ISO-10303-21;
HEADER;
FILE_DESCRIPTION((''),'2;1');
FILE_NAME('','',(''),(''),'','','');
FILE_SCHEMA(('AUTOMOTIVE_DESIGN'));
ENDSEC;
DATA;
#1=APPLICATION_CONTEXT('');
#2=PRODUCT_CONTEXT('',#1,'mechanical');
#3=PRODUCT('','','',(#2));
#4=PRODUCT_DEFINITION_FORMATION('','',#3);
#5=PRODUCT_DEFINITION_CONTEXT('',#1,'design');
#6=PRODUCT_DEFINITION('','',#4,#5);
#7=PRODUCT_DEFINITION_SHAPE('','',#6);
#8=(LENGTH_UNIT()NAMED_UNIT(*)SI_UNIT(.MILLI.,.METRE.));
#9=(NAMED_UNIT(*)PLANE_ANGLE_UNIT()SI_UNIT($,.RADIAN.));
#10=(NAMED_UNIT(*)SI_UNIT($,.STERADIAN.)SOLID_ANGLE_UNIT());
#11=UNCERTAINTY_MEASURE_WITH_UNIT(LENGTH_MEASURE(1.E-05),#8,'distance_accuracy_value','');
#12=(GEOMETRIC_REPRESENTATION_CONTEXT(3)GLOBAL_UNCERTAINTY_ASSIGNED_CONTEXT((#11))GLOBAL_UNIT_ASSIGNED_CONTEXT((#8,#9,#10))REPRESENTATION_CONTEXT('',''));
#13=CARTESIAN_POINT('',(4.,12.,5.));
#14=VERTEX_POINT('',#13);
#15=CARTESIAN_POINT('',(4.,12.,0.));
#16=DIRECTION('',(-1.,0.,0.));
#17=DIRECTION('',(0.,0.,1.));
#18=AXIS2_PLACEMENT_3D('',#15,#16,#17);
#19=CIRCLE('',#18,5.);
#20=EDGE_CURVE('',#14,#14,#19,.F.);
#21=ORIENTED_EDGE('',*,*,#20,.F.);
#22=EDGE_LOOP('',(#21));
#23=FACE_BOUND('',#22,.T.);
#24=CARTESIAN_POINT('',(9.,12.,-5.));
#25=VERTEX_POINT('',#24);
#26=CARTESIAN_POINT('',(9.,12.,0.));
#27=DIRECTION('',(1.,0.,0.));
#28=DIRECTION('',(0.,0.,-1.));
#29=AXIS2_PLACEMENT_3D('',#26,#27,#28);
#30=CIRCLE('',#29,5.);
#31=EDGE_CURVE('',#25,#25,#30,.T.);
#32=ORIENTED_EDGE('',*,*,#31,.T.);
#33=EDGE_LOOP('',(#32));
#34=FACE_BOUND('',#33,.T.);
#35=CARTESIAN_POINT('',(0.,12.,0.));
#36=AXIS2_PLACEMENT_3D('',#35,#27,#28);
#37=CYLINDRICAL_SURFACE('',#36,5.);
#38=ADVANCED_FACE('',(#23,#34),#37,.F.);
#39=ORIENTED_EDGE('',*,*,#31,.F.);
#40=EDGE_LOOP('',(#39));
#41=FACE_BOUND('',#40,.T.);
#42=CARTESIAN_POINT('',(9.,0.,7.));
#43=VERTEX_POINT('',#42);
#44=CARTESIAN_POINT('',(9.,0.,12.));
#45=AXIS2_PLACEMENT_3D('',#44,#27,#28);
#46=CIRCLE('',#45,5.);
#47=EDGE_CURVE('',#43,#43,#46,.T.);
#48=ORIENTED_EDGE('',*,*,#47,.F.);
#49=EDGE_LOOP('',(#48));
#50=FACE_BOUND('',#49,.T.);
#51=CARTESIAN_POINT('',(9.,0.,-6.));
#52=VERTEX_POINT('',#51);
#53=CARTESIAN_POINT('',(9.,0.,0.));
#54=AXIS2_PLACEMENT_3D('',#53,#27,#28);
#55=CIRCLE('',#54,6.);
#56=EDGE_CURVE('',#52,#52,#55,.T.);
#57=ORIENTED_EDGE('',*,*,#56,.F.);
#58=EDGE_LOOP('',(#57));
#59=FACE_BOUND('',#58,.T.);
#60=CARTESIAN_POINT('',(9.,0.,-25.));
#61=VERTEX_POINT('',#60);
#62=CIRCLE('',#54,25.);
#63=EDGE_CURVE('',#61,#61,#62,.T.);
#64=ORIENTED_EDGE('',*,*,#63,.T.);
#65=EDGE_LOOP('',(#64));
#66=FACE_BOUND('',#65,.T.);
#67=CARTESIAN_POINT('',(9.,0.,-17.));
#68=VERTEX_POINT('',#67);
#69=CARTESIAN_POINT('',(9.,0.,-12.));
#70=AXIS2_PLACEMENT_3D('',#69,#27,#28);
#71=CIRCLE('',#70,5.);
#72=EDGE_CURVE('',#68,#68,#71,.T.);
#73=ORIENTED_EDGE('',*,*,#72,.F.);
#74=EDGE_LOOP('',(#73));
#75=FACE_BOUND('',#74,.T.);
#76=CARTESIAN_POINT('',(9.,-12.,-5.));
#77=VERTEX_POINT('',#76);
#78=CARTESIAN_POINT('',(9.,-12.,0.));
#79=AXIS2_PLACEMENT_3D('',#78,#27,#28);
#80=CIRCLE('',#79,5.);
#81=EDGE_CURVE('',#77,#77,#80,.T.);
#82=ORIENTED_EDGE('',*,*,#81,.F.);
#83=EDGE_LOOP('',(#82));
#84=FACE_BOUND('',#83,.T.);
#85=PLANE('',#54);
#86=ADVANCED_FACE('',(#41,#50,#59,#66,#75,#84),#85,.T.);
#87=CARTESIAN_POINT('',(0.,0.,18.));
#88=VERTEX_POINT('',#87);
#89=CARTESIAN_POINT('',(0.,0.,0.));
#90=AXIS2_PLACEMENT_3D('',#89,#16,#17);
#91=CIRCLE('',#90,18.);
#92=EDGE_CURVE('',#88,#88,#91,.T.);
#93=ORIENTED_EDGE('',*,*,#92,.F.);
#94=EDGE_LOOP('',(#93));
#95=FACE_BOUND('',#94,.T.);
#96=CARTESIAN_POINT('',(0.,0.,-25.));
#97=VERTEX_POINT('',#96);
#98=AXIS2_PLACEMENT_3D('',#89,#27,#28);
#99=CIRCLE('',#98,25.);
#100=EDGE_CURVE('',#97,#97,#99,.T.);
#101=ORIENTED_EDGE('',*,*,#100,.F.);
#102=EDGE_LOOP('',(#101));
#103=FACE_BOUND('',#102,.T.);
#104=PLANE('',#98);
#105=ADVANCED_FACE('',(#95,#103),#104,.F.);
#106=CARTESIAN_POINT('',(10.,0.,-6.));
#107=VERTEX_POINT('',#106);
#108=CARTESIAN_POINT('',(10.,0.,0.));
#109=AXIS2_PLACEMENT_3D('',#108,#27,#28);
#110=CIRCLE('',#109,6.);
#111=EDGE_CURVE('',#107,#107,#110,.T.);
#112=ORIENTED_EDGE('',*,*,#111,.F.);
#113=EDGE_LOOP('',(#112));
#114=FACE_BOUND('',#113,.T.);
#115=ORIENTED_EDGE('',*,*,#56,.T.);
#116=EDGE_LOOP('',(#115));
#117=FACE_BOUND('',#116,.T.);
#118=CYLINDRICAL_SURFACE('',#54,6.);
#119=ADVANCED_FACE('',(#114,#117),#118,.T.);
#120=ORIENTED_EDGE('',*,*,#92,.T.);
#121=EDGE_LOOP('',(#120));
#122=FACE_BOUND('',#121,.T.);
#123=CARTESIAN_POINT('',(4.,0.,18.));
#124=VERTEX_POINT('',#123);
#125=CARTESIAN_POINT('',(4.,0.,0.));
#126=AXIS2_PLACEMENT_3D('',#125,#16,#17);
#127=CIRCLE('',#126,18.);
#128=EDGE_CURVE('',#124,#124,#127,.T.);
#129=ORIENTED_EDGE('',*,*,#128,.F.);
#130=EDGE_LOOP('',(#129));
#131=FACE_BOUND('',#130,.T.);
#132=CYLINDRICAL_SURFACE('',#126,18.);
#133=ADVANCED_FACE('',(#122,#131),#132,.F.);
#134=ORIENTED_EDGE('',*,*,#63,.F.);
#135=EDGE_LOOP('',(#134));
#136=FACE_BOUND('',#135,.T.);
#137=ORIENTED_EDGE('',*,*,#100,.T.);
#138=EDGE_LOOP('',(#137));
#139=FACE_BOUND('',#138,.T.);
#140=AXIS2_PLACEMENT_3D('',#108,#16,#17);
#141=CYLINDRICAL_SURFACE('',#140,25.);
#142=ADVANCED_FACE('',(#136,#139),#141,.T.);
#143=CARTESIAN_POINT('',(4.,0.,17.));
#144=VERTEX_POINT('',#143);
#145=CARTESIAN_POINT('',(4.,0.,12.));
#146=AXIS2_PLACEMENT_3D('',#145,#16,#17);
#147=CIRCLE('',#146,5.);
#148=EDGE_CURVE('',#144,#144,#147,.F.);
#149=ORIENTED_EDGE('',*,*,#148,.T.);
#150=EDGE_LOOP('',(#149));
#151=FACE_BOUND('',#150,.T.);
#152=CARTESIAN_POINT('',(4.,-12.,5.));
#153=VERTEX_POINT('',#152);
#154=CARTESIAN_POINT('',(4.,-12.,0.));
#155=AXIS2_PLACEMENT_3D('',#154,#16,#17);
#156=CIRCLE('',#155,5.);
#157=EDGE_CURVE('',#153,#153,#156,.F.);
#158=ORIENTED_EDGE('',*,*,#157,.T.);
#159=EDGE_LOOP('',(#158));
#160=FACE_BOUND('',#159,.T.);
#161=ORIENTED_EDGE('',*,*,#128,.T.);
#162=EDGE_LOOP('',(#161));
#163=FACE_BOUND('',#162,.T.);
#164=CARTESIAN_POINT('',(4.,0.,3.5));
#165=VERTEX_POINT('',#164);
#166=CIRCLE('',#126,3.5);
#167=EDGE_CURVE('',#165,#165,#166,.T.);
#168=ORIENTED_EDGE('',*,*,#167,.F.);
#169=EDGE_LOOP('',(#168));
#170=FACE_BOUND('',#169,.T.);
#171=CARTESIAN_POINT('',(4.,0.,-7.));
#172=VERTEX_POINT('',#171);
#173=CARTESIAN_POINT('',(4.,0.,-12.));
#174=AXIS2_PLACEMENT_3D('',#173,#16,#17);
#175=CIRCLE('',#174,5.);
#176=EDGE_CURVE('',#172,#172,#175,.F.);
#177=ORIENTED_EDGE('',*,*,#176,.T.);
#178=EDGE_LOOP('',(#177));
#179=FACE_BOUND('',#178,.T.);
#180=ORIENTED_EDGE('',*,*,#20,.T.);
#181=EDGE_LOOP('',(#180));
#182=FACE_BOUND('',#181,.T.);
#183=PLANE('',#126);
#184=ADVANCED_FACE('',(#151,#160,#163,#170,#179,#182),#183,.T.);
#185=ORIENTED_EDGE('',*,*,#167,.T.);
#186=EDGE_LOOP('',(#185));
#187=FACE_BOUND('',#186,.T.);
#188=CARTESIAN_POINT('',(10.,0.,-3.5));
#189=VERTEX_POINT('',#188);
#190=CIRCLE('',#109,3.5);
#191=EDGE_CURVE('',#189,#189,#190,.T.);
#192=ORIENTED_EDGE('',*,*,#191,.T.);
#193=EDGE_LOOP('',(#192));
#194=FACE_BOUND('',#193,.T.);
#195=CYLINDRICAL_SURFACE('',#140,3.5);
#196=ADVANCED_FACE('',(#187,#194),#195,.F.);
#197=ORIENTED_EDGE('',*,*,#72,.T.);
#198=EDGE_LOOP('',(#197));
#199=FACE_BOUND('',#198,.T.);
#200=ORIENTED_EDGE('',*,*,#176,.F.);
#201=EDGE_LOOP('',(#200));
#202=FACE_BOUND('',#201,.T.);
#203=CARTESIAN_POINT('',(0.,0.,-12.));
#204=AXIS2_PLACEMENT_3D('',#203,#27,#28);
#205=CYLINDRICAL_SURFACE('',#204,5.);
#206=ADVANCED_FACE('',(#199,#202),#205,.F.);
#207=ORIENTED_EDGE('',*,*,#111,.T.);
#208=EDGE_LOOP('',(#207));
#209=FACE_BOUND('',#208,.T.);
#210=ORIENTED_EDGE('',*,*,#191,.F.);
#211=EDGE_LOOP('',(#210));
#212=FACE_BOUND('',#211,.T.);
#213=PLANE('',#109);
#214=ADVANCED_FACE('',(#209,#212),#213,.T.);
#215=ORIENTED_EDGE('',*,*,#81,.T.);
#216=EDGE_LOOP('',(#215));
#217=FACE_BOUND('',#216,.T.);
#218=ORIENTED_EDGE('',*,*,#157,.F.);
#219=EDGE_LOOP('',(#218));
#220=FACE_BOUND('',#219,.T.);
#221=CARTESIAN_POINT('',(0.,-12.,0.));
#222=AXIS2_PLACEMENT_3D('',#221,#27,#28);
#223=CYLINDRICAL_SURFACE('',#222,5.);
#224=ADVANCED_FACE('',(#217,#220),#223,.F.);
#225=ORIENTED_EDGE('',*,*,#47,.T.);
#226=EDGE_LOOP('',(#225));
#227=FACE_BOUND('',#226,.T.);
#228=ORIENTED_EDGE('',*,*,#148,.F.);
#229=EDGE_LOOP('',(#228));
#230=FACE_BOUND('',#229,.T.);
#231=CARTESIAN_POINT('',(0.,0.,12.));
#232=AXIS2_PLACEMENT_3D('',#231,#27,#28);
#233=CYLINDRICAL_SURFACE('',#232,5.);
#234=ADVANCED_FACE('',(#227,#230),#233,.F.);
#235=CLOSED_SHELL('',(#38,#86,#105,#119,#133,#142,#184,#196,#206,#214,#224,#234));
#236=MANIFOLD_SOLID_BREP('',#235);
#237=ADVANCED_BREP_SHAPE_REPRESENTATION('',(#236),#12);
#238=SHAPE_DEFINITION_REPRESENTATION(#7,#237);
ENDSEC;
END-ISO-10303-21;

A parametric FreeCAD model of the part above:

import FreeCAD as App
import Part
import Sketcher
from FreeCAD import Vector
Q = App.Units.Quantity

doc = App.newDocument("Part")
body = doc.addObject("PartDesign::Body", "Body")

sketch1 = body.newObject("Sketcher::SketchObject", "Sketch")
sketch1.AttachmentSupport = (doc.getObject("YZ_Plane"), [""])
sketch1.MapMode = "FlatFace"
sketch1.addGeometry(Part.Circle(Vector(0, 0, 0), Vector(0, 0, 1), 25), False)
sketch1.addGeometry(Part.Circle(Vector(0, 0, 0), Vector(0, 0, 1), 3.5), False)
sketch1.addConstraint(Sketcher.Constraint("Coincident", 0, 3, -1, 1))
sketch1.addConstraint(Sketcher.Constraint("Coincident", 1, 3, -1, 1))
sketch1.addConstraint(Sketcher.Constraint("Diameter", 0, Q("50 mm")))
sketch1.addConstraint(Sketcher.Constraint("Diameter", 1, Q("7 mm")))
pad1 = body.newObject("PartDesign::Pad", "Pad")
pad1.Profile = sketch1
pad1.Length = 10

sketch2 = body.newObject("Sketcher::SketchObject", "Sketch001")
sketch2.AttachmentSupport = (doc.getObject("YZ_Plane"), [""])
sketch2.MapMode = "FlatFace"
sketch2.AttachmentOffset = App.Placement(Vector(0, 0, 9), App.Rotation())
sketch2.addGeometry(Part.Circle(Vector(0, 0, 0), Vector(0, 0, 1), 25), False)
sketch2.addGeometry(Part.Circle(Vector(0, 0, 0), Vector(0, 0, 1), 6), False)
sketch2.addConstraint(Sketcher.Constraint("Coincident", 0, 3, -1, 1))
sketch2.addConstraint(Sketcher.Constraint("Coincident", 1, 3, -1, 1))
sketch2.addConstraint(Sketcher.Constraint("Diameter", 0, Q("50 mm")))
sketch2.addConstraint(Sketcher.Constraint("Diameter", 1, Q("12 mm")))
pocket1 = body.newObject("PartDesign::Pocket", "Pocket")
pocket1.Profile = sketch2
pocket1.Length = 1
pocket1.Reversed = True

sketch3 = body.newObject("Sketcher::SketchObject", "Sketch002")
sketch3.AttachmentSupport = (doc.getObject("YZ_Plane"), [""])
sketch3.MapMode = "FlatFace"
sketch3.AttachmentOffset = App.Placement(Vector(0, 0, 9), App.Rotation())
sketch3.addGeometry(Part.Circle(Vector(12, 0, 0), Vector(0, 0, 1), 5), False)
sketch3.addGeometry(Part.Circle(Vector(0, -12, 0), Vector(0, 0, 1), 5), False)
sketch3.addGeometry(Part.Circle(Vector(-12, 0, 0), Vector(0, 0, 1), 5), False)
sketch3.addGeometry(Part.Circle(Vector(0, 12, 0), Vector(0, 0, 1), 5), False)
sketch3.addConstraint(Sketcher.Constraint("Equal", 0, 1))
sketch3.addConstraint(Sketcher.Constraint("Equal", 1, 2))
sketch3.addConstraint(Sketcher.Constraint("Equal", 2, 3))
sketch3.addConstraint(Sketcher.Constraint("Symmetric", 0, 3, 2, 3, -1, 1))
sketch3.addConstraint(Sketcher.Constraint("Symmetric", 1, 3, 3, 3, -1, 1))
sketch3.addConstraint(Sketcher.Constraint("PointOnObject", 0, 3, -1))
sketch3.addConstraint(Sketcher.Constraint("PointOnObject", 1, 3, -2))
sketch3.addConstraint(Sketcher.Constraint("Diameter", 0, Q("10 mm")))
sketch3.addConstraint(Sketcher.Constraint("DistanceX", -1, 1, 0, 3, Q("12 mm")))
sketch3.addConstraint(Sketcher.Constraint("DistanceY", 1, 3, -1, 1, Q("12 mm")))
pocket2 = body.newObject("PartDesign::Pocket", "Pocket001")
pocket2.Profile = sketch3
pocket2.Type = "ThroughAll"

sketch4 = body.newObject("Sketcher::SketchObject", "Sketch003")
sketch4.AttachmentSupport = (doc.getObject("YZ_Plane"), [""])
sketch4.MapMode = "FlatFace"
sketch4.addGeometry(Part.Circle(Vector(0, 0, 0), Vector(0, 0, 1), 18), False)
sketch4.addConstraint(Sketcher.Constraint("Coincident", 0, 3, -1, 1))
sketch4.addConstraint(Sketcher.Constraint("Diameter", 0, Q("36 mm")))
pocket3 = body.newObject("PartDesign::Pocket", "Pocket002")
pocket3.Profile = sketch4
pocket3.Length = 4
pocket3.Reversed = True

doc.recompute()
